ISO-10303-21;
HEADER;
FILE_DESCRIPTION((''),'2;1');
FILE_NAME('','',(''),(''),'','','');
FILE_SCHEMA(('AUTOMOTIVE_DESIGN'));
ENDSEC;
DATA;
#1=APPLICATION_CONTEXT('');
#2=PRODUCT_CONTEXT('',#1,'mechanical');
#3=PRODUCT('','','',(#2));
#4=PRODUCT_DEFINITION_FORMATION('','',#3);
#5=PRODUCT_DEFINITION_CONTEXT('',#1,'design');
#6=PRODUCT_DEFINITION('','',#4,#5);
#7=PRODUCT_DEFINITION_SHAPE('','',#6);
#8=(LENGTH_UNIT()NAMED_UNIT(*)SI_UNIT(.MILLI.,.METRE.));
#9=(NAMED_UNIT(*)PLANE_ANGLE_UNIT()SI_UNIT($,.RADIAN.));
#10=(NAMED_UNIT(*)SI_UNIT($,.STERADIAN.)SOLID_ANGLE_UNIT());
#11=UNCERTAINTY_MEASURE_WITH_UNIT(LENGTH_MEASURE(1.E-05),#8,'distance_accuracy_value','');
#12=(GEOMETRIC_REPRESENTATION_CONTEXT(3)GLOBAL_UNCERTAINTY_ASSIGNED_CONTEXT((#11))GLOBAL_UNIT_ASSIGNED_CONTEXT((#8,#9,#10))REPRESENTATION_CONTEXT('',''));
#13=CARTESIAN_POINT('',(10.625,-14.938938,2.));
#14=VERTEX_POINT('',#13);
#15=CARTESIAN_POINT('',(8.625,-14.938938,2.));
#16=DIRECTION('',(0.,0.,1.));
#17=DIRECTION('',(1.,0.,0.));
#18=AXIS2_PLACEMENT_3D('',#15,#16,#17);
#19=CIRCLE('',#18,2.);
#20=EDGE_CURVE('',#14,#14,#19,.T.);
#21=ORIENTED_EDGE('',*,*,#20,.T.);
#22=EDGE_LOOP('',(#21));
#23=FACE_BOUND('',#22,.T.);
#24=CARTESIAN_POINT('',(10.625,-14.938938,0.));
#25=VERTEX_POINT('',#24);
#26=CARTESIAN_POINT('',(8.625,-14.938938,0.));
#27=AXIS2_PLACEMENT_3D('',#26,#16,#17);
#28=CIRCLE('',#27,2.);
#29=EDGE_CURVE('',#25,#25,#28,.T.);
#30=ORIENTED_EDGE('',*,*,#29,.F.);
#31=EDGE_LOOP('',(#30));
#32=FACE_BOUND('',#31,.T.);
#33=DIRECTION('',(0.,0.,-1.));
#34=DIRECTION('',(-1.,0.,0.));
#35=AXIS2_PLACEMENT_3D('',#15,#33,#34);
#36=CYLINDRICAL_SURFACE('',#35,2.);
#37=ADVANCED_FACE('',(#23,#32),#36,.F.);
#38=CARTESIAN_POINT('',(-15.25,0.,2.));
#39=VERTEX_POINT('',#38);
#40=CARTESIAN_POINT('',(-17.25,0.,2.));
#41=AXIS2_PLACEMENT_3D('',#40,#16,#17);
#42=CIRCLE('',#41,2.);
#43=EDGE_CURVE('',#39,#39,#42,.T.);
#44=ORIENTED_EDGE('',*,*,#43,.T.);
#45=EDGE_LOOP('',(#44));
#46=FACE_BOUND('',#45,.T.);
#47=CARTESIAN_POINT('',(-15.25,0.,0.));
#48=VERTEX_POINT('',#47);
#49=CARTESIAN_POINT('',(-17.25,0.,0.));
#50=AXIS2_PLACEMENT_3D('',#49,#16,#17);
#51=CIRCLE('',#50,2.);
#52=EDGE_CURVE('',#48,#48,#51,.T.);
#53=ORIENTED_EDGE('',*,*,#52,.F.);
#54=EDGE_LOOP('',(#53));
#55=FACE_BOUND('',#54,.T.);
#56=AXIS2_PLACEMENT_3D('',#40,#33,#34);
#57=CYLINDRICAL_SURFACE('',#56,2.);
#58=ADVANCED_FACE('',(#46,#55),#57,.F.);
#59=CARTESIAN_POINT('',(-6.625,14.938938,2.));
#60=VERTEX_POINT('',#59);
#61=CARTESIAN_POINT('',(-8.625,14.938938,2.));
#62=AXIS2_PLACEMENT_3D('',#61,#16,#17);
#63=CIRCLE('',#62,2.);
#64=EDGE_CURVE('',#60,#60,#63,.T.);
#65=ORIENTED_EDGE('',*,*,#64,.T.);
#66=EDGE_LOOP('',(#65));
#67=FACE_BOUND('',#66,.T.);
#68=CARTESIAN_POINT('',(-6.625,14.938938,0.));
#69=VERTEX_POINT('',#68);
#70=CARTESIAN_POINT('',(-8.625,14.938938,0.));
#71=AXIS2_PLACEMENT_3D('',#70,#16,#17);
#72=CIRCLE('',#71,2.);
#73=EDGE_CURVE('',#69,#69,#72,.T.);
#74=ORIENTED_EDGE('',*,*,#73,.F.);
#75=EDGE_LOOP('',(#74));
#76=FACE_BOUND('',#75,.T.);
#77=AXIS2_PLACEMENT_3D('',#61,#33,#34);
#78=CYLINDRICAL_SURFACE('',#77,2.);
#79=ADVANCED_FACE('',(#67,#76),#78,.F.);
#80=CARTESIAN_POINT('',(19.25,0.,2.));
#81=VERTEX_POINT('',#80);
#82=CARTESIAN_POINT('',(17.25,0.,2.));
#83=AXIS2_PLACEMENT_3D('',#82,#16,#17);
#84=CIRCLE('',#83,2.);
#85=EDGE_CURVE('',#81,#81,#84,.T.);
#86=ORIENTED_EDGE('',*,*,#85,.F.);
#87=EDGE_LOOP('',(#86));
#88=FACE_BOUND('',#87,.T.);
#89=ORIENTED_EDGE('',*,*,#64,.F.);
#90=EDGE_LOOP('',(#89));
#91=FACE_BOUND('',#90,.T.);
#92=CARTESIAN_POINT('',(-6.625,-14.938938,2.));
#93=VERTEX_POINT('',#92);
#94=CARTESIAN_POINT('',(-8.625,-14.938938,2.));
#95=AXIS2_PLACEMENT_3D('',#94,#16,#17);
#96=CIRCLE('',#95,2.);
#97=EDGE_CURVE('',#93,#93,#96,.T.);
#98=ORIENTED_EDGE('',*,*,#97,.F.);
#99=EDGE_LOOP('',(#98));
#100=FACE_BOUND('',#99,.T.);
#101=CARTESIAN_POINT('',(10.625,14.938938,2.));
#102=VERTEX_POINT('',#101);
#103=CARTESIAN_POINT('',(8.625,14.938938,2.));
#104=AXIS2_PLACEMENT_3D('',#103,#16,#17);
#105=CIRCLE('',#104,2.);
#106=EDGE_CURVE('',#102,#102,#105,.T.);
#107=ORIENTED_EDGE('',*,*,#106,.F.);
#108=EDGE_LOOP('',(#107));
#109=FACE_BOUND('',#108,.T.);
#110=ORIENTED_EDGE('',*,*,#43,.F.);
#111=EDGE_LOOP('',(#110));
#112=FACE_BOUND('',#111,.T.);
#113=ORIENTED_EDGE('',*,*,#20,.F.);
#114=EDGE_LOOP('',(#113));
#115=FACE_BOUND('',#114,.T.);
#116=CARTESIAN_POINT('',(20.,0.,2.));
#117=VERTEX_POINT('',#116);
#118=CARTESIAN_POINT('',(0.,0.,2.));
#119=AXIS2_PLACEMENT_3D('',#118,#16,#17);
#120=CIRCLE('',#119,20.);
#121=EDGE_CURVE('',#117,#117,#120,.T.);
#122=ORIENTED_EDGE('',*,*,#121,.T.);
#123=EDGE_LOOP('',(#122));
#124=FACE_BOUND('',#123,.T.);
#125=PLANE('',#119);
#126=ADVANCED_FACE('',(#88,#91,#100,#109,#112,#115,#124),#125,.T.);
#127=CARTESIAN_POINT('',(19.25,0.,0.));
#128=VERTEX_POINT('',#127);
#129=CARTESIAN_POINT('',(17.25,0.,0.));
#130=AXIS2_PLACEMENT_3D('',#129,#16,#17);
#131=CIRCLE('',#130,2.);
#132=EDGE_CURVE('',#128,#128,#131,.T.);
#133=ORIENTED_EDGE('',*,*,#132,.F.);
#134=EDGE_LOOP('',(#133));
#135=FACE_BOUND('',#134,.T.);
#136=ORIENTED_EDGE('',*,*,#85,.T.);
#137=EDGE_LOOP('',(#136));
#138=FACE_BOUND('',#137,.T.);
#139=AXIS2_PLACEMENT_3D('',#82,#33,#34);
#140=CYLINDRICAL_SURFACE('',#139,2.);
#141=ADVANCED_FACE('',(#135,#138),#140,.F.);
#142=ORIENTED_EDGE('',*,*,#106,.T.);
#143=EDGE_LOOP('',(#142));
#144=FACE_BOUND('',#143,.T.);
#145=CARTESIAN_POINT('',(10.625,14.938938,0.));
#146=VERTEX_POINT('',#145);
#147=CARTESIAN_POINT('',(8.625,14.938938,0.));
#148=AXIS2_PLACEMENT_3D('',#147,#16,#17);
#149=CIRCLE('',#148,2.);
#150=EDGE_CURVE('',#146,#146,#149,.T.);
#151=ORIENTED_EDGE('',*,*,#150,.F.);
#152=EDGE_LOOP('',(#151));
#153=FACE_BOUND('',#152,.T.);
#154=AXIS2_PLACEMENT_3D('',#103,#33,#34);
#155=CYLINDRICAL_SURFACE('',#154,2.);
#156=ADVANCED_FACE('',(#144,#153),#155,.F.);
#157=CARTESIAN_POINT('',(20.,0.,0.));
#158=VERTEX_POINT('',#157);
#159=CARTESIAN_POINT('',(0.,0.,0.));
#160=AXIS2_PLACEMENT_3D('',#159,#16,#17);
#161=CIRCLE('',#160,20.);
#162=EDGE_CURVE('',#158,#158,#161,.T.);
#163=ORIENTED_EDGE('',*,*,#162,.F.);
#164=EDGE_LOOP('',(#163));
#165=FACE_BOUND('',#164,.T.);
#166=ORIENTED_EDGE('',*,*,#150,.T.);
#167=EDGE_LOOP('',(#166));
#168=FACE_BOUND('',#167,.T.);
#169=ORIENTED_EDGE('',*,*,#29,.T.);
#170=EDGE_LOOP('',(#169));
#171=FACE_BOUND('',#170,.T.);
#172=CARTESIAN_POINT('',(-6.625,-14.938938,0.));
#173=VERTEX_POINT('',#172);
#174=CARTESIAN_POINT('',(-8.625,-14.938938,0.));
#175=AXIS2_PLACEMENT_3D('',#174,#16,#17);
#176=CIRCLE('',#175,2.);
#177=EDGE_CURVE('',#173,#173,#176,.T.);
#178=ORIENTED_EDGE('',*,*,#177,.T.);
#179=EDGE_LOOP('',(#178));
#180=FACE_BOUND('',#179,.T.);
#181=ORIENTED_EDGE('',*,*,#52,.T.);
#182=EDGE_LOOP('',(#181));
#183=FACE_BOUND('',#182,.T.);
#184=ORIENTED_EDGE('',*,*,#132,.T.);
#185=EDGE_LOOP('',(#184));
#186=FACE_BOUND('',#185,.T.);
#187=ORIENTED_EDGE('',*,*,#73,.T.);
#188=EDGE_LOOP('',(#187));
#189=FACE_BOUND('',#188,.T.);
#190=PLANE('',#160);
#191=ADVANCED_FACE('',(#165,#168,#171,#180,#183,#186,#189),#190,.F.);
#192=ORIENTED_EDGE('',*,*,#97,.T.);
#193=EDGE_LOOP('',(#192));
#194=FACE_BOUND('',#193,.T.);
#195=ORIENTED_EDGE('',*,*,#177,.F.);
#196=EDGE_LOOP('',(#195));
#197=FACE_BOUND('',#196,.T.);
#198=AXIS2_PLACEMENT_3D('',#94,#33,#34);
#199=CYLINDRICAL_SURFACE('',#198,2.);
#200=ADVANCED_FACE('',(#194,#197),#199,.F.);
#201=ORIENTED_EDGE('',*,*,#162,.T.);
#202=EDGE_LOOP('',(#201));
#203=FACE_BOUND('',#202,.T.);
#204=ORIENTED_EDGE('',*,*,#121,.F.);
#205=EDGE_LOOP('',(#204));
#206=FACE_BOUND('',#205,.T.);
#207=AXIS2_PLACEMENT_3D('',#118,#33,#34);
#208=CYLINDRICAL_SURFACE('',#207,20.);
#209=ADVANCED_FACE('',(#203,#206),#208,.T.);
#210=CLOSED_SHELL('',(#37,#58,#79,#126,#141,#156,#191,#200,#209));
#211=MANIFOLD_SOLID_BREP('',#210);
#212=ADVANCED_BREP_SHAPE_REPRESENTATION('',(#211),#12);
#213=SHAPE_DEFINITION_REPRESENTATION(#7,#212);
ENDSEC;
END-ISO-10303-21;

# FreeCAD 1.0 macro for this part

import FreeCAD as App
import Part
import Sketcher

V = App.Vector
Q = App.Units.Quantity

doc = App.newDocument("Part")
params = doc.addObject("Spreadsheet::Sheet", "Params")
for row, (alias, value) in enumerate([
    ("sketch1_diameter", "40 mm"),
    ("sketch1_diameter2", "4 mm"),
    ("pad1_length", "2 mm"),
], start=1):
    params.set(f"A{row}", alias)
    params.set(f"B{row}", "=" + value)
    params.setAlias(f"B{row}", alias)

body = doc.addObject("PartDesign::Body", "Body")

# Sketch on XY plane
sketch1 = body.newObject("Sketcher::SketchObject", "Sketch")
sketch1.AttachmentSupport = (doc.getObject("XY_Plane"), [""])
sketch1.MapMode = "FlatFace"
sketch1.addGeometry([
    Part.Circle(V(0, 0, 0), V(0, 0, 1), 20),  # 0
    Part.Circle(V(-8.625, -14.938938, 0), V(0, 0, 1), 2),  # 1
    Part.Circle(V(-17.25, 0, 0), V(0, 0, 1), 2),  # 2
    Part.Circle(V(8.625, -14.938938, 0), V(0, 0, 1), 2),  # 3
    Part.Circle(V(17.25, 0, 0), V(0, 0, 1), 2),  # 4
    Part.Circle(V(-8.625, 14.938938, 0), V(0, 0, 1), 2),  # 5
    Part.Circle(V(8.625, 14.938938, 0), V(0, 0, 1), 2),  # 6
], False)
sketch1.addConstraint([
    Sketcher.Constraint("Coincident", 0, 3, -1, 1),
    Sketcher.Constraint("Equal", 1, 2),
    Sketcher.Constraint("Equal", 2, 3),
    Sketcher.Constraint("Equal", 3, 4),
    Sketcher.Constraint("Equal", 4, 5),
    Sketcher.Constraint("Equal", 5, 6),
    Sketcher.Constraint("Symmetric", 2, 3, 4, 3, -1, 1),
    Sketcher.Constraint("Symmetric", 3, 3, 5, 3, -1, 1),
    Sketcher.Constraint("Symmetric", 1, 3, 6, 3, -1, 1),
    Sketcher.Constraint("Symmetric", 1, 3, 3, 3, -2),
    Sketcher.Constraint("PointOnObject", 2, 3, -1),
    Sketcher.Constraint("Diameter", 0, Q("40 mm")),
    Sketcher.Constraint("Diameter", 1, Q("4 mm")),
    Sketcher.Constraint("DistanceX", 2, 3, 4, 3, Q("34.5 mm")),
    Sketcher.Constraint("DistanceX", 1, 3, 3, 3, Q("17.25 mm")),
    Sketcher.Constraint("DistanceY", 1, 3, -1, 1, Q("14.938938 mm")),
])
sketch1.setExpression("Constraints[11]", "Params.sketch1_diameter")
sketch1.setExpression("Constraints[12]", "Params.sketch1_diameter2")
pad1 = body.newObject("PartDesign::Pad", "Pad")
pad1.Profile = sketch1
pad1.setExpression("Length", "Params.pad1_length")

doc.recompute()
